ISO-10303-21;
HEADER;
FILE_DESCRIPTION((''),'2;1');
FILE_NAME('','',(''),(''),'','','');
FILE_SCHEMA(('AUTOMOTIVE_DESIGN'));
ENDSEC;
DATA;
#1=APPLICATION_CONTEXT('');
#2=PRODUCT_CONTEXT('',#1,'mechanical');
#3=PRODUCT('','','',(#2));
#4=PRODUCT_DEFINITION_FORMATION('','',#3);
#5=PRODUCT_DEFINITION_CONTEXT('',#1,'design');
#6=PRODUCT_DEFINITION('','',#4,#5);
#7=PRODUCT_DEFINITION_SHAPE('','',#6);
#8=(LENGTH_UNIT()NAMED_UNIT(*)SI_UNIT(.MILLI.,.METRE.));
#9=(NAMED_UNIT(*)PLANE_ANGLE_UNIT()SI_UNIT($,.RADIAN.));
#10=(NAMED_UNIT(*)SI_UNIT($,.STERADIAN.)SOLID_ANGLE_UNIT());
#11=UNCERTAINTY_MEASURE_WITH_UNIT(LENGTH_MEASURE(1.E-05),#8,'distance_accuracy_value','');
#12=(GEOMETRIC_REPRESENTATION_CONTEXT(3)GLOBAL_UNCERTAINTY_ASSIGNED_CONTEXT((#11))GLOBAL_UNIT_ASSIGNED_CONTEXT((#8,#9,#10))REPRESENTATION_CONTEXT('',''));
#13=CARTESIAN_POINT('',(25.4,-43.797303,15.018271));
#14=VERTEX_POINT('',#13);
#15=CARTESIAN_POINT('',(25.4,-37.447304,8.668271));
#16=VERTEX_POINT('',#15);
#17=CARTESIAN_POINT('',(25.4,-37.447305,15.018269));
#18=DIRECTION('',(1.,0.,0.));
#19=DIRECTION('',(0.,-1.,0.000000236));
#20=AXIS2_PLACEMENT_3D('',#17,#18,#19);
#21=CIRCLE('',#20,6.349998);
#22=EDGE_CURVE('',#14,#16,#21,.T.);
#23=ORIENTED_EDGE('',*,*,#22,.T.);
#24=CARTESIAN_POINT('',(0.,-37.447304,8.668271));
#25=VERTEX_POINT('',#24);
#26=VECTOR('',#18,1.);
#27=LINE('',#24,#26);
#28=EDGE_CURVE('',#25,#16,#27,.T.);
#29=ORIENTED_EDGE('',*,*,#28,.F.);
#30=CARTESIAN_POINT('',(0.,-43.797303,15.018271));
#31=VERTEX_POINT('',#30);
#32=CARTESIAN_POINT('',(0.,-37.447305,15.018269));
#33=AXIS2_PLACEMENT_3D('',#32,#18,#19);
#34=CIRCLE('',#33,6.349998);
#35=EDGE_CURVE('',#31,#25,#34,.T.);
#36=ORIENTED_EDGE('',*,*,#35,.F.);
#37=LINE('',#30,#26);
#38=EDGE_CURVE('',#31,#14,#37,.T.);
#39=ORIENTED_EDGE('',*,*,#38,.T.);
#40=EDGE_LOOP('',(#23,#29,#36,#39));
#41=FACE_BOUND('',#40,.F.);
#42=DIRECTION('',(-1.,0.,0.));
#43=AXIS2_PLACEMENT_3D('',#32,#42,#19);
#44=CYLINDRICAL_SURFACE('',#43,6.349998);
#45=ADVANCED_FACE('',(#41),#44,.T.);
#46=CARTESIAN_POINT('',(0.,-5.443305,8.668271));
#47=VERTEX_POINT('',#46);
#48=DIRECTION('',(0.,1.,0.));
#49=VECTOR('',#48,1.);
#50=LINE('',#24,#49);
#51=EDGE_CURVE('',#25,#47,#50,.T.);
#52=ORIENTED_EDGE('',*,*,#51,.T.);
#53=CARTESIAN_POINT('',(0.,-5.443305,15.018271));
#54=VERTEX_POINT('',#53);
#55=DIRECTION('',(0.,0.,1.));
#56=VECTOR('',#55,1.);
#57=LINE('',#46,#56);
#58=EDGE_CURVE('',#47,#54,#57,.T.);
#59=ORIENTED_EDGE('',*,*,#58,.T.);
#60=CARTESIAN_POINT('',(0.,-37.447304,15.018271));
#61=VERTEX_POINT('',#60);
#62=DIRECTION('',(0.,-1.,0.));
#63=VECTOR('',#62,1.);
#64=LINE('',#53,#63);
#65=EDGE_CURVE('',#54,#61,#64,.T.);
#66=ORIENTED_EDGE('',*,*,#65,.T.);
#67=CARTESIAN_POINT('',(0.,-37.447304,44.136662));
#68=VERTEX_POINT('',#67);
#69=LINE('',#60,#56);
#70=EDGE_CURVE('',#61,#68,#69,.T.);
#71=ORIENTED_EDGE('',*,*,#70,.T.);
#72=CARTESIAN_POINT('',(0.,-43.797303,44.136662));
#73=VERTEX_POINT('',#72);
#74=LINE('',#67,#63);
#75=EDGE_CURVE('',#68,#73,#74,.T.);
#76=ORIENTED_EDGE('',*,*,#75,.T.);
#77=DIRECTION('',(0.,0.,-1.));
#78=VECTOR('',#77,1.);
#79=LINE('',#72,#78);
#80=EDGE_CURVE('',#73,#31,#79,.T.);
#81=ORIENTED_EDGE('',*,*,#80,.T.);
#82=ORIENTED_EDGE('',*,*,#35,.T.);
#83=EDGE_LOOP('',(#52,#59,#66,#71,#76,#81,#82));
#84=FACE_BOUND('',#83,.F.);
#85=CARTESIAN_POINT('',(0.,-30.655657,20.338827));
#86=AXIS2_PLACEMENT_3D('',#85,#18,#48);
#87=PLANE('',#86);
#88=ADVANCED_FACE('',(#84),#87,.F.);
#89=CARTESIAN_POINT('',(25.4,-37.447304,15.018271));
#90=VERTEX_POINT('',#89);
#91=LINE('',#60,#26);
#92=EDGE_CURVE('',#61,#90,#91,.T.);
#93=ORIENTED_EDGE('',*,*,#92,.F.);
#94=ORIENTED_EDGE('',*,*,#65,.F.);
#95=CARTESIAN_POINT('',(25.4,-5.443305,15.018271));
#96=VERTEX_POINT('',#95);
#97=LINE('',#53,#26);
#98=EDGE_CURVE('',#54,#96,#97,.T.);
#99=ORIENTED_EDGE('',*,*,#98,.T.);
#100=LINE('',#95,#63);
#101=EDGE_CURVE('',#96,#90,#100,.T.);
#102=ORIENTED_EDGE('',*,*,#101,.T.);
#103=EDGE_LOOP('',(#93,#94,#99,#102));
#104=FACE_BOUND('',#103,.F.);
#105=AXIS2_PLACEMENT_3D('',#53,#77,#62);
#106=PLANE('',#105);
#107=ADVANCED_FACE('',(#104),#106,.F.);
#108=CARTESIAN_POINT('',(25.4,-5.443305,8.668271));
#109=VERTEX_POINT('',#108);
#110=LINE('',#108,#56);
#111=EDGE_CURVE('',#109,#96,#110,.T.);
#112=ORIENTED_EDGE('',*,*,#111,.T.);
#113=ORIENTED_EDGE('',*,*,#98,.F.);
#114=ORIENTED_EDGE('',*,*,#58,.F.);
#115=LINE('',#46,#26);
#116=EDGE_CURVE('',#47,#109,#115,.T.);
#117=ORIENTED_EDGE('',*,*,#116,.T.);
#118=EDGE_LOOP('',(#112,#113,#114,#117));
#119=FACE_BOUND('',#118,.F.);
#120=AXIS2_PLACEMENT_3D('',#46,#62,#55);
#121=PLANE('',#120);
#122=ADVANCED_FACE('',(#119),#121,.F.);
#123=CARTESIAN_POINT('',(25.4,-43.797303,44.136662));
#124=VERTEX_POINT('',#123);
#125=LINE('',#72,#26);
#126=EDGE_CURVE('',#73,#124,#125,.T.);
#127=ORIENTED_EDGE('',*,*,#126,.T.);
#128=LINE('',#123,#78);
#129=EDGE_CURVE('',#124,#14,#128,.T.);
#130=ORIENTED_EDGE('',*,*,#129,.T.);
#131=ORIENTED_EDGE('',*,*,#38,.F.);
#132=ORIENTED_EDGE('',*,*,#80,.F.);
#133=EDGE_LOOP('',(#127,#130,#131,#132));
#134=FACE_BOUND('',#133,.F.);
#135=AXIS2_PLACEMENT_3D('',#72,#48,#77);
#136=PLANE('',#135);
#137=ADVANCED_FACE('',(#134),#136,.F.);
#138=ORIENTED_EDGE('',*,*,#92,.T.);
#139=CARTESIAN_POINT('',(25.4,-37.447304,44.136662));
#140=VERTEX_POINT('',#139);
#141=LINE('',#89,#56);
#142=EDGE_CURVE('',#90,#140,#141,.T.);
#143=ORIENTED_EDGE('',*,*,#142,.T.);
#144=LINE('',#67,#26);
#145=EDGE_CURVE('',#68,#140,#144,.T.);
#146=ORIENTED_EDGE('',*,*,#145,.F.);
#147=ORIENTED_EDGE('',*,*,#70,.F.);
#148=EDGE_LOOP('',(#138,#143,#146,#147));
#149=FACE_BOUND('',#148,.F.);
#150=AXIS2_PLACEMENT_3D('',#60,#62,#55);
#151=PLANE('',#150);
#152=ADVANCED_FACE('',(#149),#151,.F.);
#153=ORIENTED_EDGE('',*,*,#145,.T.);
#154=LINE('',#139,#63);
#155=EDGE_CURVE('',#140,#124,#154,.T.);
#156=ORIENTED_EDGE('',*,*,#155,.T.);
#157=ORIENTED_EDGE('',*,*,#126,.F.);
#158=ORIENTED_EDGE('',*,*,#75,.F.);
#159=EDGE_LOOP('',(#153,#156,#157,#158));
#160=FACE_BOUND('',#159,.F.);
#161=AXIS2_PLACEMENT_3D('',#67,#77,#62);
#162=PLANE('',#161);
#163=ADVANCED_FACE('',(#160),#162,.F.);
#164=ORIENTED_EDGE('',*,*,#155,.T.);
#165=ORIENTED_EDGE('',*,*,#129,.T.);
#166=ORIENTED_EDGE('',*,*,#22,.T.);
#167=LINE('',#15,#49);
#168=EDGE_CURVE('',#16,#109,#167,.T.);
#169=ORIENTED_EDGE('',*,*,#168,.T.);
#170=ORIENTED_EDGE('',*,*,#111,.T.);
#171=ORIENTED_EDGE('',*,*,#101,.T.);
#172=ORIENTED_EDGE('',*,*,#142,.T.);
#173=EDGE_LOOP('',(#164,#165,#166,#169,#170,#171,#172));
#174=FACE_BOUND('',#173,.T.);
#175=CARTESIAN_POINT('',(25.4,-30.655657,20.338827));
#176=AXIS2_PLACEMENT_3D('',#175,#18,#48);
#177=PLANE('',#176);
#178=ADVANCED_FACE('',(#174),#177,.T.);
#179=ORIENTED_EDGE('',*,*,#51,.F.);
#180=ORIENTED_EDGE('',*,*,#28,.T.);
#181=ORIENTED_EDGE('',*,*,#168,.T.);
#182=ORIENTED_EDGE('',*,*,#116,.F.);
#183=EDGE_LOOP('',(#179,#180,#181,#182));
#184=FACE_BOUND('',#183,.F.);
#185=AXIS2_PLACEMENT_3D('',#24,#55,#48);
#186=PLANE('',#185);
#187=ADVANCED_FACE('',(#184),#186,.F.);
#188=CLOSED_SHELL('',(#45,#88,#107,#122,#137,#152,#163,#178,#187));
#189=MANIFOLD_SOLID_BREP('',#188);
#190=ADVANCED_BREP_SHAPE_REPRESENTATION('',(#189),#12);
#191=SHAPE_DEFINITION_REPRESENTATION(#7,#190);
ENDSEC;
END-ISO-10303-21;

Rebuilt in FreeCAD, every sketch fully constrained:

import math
import FreeCAD as App
import Part
import Sketcher
Q = App.Units.Quantity

doc = App.newDocument("Part")
params = doc.addObject("Spreadsheet::Sheet", "Params")
for row, (alias, value) in enumerate([
    ("sketch1_radius", "0.2499999 in"),
    ("sketch1_width", "1.26 in"),
    ("pad1_length", "1 in"),
], start=1):
    params.set(f"A{row}", alias)
    params.set(f"B{row}", "=" + value)
    params.setAlias(f"B{row}", alias)

body = doc.addObject("PartDesign::Body", "Body")

# Sketch on YZ plane
sketch1 = body.newObject("Sketcher::SketchObject", "Sketch")
sketch1.AttachmentSupport = (doc.getObject("YZ_Plane"), [""])
sketch1.MapMode = "FlatFace"
sketch1.addGeometry(Part.LineSegment(App.Vector(-37.447304, 15.018271, 0), App.Vector(-37.447304, 44.136662, 0)), False)
sketch1.addGeometry(Part.LineSegment(App.Vector(-37.447304, 44.136662, 0), App.Vector(-43.797303, 44.136662, 0)), False)
sketch1.addGeometry(Part.LineSegment(App.Vector(-43.797303, 44.136662, 0), App.Vector(-43.797303, 15.018271, 0)), False)
sketch1.addGeometry(Part.ArcOfCircle(Part.Circle(App.Vector(-37.447305, 15.01827, 0), App.Vector(0, 0, 1), 6.349998), math.radians(179.999986), math.radians(270.000005)), False)
sketch1.addGeometry(Part.LineSegment(App.Vector(-37.447304, 8.668271, 0), App.Vector(-5.443305, 8.668271, 0)), False)
sketch1.addGeometry(Part.LineSegment(App.Vector(-5.443305, 8.668271, 0), App.Vector(-5.443305, 15.018271, 0)), False)
sketch1.addGeometry(Part.LineSegment(App.Vector(-5.443305, 15.018271, 0), App.Vector(-37.447304, 15.018271, 0)), False)
sketch1.addConstraint(Sketcher.Constraint("Coincident", 0, 2, 1, 1))
sketch1.addConstraint(Sketcher.Constraint("Coincident", 1, 2, 2, 1))
sketch1.addConstraint(Sketcher.Constraint("Tangent", 2, 2, 3, 1))
sketch1.addConstraint(Sketcher.Constraint("Tangent", 3, 2, 4, 1))
sketch1.addConstraint(Sketcher.Constraint("Coincident", 4, 2, 5, 1))
sketch1.addConstraint(Sketcher.Constraint("Coincident", 5, 2, 6, 1))
sketch1.addConstraint(Sketcher.Constraint("Coincident", 6, 2, 0, 1))
sketch1.addConstraint(Sketcher.Constraint("Vertical", 0))
sketch1.addConstraint(Sketcher.Constraint("Horizontal", 1))
sketch1.addConstraint(Sketcher.Constraint("Vertical", 2))
sketch1.addConstraint(Sketcher.Constraint("Horizontal", 4))
sketch1.addConstraint(Sketcher.Constraint("Vertical", 5))
sketch1.addConstraint(Sketcher.Constraint("Horizontal", 6))
sketch1.addConstraint(Sketcher.Constraint("Coincident", 6, 2, 3, 3))
sketch1.addConstraint(Sketcher.Constraint("Radius", 3, Q("0.2499999 in")))
sketch1.addConstraint(Sketcher.Constraint("DistanceX", 4, 1, 4, 2, Q("1.26 in")))
sketch1.addConstraint(Sketcher.Constraint("DistanceY", 0, 1, 0, 2, Q("29.118391 mm")))
sketch1.addConstraint(Sketcher.Constraint("DistanceY", -1, 1, 3, 3, Q("15.01827 mm")))
sketch1.addConstraint(Sketcher.Constraint("DistanceX", 3, 3, -1, 1, Q("37.447305 mm")))
sketch1.setExpression("Constraints[14]", "Params.sketch1_radius")
sketch1.setExpression("Constraints[15]", "Params.sketch1_width")
pad1 = body.newObject("PartDesign::Pad", "Pad")
pad1.Profile = sketch1
pad1.setExpression("Length", "Params.pad1_length")

doc.recompute()
